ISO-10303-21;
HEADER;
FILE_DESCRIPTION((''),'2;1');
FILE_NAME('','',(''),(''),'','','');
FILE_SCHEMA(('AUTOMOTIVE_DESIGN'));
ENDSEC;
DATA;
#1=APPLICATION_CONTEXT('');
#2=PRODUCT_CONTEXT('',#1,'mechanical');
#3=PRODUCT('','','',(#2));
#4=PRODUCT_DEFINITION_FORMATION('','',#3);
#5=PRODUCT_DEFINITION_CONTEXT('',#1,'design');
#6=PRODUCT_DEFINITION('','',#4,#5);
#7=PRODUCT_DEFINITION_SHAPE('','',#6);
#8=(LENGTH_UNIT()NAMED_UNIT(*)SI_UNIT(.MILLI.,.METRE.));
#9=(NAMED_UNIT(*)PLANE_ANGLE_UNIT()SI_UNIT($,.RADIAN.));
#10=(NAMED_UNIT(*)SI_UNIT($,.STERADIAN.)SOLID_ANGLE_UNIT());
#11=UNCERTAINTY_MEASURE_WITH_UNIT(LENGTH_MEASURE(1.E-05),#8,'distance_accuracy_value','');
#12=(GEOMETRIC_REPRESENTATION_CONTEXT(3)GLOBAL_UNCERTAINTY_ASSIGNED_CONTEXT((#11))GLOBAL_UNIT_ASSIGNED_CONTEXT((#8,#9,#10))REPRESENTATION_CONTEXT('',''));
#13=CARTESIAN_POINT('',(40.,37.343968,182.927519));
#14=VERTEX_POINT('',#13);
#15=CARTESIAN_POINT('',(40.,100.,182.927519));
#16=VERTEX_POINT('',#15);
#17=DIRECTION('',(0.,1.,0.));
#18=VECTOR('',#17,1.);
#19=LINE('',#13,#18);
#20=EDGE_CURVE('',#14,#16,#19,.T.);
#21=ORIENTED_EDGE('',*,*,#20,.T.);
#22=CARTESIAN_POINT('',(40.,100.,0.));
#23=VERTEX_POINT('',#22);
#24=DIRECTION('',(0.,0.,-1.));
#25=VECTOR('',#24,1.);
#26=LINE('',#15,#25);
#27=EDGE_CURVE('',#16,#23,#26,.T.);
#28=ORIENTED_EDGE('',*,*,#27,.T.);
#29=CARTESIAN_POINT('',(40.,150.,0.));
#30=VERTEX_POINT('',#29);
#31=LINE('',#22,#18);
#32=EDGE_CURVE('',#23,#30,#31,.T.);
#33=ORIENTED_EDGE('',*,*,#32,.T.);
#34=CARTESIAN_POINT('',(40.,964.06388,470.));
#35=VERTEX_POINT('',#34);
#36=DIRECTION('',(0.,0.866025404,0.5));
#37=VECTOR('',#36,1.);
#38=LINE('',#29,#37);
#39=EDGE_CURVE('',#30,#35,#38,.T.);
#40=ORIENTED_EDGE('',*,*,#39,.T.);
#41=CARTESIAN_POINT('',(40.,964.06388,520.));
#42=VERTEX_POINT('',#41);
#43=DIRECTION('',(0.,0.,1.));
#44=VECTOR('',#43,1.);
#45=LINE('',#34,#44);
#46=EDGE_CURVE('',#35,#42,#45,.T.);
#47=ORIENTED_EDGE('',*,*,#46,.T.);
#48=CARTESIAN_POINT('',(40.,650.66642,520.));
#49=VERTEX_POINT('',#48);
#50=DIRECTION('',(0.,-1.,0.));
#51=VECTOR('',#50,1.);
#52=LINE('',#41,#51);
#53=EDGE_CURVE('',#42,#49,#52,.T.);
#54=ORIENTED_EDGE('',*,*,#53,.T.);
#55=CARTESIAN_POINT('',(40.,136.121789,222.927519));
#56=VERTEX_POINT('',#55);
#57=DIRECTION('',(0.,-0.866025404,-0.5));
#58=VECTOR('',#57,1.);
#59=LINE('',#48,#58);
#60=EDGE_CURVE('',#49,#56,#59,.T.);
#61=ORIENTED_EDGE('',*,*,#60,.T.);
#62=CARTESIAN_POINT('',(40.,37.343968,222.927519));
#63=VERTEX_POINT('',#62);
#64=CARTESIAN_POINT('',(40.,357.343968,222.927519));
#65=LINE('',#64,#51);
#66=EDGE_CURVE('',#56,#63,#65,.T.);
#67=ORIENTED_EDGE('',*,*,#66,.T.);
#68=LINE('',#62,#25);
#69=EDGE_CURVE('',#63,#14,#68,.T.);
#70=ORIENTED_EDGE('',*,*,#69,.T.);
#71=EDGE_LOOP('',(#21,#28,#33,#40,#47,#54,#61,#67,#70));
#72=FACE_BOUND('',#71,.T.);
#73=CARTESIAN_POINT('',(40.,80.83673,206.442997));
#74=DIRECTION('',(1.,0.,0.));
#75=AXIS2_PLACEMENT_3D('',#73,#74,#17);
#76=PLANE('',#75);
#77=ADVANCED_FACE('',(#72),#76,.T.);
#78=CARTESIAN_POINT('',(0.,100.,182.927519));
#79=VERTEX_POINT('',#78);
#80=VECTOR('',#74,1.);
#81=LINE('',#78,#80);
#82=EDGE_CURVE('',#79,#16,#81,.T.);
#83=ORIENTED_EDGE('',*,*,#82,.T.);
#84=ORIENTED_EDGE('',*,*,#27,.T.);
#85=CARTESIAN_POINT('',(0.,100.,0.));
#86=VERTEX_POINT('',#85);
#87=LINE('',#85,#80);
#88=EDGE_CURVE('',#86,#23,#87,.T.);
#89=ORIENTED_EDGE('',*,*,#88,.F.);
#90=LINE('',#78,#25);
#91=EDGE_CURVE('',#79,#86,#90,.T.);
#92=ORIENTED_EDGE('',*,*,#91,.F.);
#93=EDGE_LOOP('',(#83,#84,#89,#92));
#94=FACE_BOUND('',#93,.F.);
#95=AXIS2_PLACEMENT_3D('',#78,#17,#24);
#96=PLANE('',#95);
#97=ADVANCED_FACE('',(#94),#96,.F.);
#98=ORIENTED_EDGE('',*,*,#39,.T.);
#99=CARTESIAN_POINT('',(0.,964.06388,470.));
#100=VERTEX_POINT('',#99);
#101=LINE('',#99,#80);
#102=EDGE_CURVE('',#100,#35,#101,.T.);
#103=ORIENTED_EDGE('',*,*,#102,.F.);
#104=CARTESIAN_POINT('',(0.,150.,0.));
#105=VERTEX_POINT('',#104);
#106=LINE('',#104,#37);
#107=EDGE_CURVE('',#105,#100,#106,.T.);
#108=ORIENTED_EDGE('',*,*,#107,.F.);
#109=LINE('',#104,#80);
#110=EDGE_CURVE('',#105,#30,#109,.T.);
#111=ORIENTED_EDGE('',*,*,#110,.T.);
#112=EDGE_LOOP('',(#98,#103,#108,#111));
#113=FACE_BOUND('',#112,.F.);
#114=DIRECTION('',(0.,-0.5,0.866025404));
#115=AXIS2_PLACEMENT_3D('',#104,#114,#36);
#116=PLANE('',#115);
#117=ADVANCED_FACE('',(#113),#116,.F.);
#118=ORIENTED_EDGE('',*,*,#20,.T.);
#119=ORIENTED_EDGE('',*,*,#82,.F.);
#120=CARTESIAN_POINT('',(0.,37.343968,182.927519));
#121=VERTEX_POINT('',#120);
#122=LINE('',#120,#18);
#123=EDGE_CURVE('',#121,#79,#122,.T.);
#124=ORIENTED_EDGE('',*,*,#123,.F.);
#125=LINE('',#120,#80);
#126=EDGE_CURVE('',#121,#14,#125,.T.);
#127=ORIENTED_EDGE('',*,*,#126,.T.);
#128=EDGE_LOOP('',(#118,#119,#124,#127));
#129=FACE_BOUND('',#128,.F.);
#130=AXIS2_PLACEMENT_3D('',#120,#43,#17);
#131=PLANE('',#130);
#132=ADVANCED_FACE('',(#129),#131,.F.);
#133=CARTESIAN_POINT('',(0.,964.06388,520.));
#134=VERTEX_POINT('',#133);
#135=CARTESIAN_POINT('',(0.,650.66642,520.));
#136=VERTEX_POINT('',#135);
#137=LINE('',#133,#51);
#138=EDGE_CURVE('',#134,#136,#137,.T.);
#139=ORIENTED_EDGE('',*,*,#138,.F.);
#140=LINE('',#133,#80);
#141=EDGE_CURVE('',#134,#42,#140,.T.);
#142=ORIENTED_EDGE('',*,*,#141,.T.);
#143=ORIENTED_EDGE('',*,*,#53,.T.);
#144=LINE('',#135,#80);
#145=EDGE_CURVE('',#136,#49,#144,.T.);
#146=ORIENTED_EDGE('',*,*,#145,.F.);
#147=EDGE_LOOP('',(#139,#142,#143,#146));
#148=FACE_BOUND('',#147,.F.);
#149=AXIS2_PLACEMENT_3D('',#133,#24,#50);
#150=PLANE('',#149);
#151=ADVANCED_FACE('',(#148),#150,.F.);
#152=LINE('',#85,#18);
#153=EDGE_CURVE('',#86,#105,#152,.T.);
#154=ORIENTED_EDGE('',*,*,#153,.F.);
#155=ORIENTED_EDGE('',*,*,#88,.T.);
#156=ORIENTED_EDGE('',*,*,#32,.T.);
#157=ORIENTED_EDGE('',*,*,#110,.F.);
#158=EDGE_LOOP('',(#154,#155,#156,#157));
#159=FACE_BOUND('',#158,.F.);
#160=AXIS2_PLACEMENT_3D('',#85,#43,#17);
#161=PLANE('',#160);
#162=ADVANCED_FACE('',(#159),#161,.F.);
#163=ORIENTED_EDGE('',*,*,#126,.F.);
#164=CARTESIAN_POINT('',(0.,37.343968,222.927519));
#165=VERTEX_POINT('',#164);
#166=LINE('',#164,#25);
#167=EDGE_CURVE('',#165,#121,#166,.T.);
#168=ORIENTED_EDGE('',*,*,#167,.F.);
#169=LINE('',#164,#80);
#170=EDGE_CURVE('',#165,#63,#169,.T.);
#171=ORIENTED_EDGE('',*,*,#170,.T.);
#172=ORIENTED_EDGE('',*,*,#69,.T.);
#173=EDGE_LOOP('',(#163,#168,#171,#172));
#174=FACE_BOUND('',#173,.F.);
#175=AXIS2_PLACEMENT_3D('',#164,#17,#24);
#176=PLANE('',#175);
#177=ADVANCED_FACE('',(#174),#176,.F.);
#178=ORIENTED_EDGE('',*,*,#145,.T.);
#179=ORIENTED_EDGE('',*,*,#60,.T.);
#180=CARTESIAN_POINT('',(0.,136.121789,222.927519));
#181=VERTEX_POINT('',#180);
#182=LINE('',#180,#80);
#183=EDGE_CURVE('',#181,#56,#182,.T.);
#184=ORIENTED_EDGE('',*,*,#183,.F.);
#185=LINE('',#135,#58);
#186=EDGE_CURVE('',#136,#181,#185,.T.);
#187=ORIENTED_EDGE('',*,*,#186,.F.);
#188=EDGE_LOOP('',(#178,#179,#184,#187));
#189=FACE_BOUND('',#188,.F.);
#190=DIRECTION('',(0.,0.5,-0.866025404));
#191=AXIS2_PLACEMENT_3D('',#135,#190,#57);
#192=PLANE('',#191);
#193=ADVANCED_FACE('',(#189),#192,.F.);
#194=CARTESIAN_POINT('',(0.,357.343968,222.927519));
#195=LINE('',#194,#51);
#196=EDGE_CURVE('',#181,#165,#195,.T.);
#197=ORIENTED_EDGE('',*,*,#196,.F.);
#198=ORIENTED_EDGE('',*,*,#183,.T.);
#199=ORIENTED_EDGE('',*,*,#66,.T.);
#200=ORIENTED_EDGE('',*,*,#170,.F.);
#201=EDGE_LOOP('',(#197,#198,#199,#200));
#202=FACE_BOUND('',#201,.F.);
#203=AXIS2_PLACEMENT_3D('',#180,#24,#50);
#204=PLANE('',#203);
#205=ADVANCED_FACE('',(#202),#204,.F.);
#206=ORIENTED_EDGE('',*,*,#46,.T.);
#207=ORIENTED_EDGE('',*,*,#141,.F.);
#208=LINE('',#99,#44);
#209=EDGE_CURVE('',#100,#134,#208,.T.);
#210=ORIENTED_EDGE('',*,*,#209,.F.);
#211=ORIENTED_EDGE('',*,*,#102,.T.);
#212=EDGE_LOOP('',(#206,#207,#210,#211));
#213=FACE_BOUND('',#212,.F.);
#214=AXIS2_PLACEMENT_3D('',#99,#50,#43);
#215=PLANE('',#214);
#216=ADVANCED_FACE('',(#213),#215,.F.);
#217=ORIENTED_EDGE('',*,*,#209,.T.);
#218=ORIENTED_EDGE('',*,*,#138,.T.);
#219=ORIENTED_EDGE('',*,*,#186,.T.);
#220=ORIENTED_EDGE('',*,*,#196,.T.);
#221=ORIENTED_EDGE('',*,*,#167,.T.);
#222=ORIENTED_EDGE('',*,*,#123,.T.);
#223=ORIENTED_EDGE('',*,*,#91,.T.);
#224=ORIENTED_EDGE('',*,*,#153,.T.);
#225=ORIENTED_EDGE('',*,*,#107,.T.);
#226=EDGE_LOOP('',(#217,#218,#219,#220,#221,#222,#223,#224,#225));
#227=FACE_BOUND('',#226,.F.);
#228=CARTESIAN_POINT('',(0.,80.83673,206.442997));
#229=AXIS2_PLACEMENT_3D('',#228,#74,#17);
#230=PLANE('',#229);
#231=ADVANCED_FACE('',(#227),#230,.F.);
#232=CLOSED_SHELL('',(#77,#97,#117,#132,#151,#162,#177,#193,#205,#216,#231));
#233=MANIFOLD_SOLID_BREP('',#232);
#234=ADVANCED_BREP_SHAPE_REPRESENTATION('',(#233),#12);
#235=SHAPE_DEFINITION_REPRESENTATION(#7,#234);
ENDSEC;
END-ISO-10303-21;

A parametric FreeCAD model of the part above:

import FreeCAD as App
import Part
import Sketcher

V = App.Vector
Q = App.Units.Quantity


def add_polygon(sketch, points):
    """Adds a closed chain of lines whose ends are joined by coincident constraints."""
    first, n = sketch.GeometryCount, len(points)
    for a, b in zip(points, points[1:] + points[:1]):
        sketch.addGeometry(Part.LineSegment(App.Vector(*a, 0), App.Vector(*b, 0)), False)
    for i in range(n):
        sketch.addConstraint(Sketcher.Constraint("Coincident", first + i, 2, first + (i + 1) % n, 1))

doc = App.newDocument("Part")
params = doc.addObject("Spreadsheet::Sheet", "Params")
for row, (alias, value) in enumerate([
    ("sketch1_width", "50 mm"),
    ("sketch1_height", "40 mm"),
    ("sketch1_length", "940 mm"),
    ("pad1_length", "40 mm"),
], start=1):
    params.set(f"A{row}", alias)
    params.set(f"B{row}", "=" + value)
    params.setAlias(f"B{row}", alias)

body = doc.addObject("PartDesign::Body", "Body")

# Sketch on YZ plane
sketch1 = doc.addObject("Sketcher::SketchObject", "Sketch")
body.addObject(sketch1)
sketch1.AttachmentSupport = (doc.YZ_Plane, [""])
sketch1.MapMode = "FlatFace"
add_polygon(sketch1, [(37, 223), (37, 183), (100, 183), (100, 0), (150, 0), (964, 470), (964, 520), (651, 520), (136, 223)])  # lines 0-8
sketch1.addConstraint([
    Sketcher.Constraint("Vertical", 0),
    Sketcher.Constraint("Horizontal", 1),
    Sketcher.Constraint("Vertical", 2),
    Sketcher.Constraint("Horizontal", 3),
    Sketcher.Constraint("Vertical", 5),
    Sketcher.Constraint("Horizontal", 6),
    Sketcher.Constraint("Horizontal", 8),
    Sketcher.Constraint("PointOnObject", 2, 2, -1),
    Sketcher.Constraint("Parallel", 4, 7),
    Sketcher.Constraint("Equal", 3, 5),
    Sketcher.Constraint("DistanceX", 3, 1, 3, 2, Q("50 mm")),
    Sketcher.Constraint("DistanceY", 0, 2, 0, 1, Q("40 mm")),
    Sketcher.Constraint("Angle", 4, Q("30 deg")),
    Sketcher.Constraint("Distance", 4, Q("940 mm")),
    Sketcher.Constraint("DistanceX", -1, 1, 1, 2, Q("100 mm")),
    Sketcher.Constraint("DistanceX", 6, 2, 6, 1, Q("313.39746 mm")),
    Sketcher.Constraint("DistanceX", 8, 2, 8, 1, Q("98.777822 mm")),
    Sketcher.Constraint("DistanceY", 2, 2, 2, 1, Q("182.927519 mm")),
])
sketch1.setExpression("Constraints[19]", "Params.sketch1_width")
sketch1.setExpression("Constraints[20]", "Params.sketch1_height")
sketch1.setExpression("Constraints[22]", "Params.sketch1_length")
pad1 = doc.addObject("PartDesign::Pad", "Pad")
body.addObject(pad1)
pad1.Profile = sketch1
pad1.setExpression("Length", "Params.pad1_length")

doc.recompute()
